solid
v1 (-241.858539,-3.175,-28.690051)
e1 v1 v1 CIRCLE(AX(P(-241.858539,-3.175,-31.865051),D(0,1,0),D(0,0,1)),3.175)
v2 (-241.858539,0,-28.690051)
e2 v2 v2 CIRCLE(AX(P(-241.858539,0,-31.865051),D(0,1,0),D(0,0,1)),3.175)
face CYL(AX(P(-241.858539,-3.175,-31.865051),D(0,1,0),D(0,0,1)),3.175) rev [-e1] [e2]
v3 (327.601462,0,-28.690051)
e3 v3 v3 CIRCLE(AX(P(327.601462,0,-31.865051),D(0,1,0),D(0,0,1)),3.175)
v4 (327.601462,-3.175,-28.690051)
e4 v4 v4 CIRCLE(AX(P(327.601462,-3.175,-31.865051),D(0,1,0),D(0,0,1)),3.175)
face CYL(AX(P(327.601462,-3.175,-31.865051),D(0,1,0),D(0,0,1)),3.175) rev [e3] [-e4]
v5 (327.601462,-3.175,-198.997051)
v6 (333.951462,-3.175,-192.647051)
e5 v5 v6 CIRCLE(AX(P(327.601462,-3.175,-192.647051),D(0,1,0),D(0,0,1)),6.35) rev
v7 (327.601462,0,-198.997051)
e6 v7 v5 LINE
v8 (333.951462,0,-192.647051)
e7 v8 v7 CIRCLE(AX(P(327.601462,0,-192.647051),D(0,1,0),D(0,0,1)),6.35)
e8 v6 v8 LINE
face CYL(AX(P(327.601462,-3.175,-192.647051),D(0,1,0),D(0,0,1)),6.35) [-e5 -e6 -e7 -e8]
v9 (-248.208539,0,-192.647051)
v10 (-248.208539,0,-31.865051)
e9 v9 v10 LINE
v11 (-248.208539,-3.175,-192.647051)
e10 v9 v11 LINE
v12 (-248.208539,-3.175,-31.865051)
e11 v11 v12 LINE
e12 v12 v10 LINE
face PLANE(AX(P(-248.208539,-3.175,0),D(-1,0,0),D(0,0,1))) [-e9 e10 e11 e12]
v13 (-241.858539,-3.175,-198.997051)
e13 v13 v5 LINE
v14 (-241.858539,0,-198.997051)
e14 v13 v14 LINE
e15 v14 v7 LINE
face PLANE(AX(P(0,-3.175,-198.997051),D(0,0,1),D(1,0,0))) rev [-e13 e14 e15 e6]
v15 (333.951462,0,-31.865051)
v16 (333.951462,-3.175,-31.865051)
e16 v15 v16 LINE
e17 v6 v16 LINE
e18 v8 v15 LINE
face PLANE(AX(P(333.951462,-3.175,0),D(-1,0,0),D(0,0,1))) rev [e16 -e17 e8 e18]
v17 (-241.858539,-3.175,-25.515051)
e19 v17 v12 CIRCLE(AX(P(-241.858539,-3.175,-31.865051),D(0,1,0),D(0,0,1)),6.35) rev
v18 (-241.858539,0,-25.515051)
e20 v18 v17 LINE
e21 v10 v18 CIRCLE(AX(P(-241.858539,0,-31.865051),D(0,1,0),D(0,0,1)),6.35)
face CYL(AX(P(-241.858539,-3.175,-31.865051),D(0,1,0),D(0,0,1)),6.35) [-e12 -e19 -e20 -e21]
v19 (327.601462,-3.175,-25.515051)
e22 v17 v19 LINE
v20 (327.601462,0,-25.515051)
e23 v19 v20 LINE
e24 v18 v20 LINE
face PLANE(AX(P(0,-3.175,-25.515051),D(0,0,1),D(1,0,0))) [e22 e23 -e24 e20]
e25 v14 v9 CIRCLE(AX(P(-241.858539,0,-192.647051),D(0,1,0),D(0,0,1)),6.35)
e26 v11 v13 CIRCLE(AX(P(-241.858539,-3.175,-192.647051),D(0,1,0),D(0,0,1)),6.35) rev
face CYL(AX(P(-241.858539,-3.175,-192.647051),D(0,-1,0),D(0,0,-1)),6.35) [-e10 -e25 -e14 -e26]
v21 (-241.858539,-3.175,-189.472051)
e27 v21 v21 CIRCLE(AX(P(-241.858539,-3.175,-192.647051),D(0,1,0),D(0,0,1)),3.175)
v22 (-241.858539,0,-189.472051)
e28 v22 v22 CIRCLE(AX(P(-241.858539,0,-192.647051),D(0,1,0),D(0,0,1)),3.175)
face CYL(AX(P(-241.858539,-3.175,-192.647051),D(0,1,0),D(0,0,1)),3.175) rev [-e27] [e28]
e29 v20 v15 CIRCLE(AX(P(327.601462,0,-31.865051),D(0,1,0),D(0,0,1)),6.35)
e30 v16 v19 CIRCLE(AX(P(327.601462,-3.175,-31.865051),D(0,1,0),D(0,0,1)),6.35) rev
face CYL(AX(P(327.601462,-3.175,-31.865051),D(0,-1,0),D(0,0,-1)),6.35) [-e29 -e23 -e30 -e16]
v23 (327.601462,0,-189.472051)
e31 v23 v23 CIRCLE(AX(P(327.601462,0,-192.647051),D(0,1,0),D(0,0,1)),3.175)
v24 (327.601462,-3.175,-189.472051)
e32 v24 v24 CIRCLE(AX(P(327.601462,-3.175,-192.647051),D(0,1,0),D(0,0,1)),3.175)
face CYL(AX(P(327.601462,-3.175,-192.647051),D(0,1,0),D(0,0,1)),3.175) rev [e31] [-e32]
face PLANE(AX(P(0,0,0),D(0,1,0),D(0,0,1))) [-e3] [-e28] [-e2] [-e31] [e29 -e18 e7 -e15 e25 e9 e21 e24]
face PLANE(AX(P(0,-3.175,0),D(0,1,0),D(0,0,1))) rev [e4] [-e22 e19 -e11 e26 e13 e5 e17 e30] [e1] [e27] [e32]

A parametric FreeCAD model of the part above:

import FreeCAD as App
import Part
import Sketcher
from FreeCAD import Vector
Q = App.Units.Quantity


def edges_at(feature, points):
    """Names of the edges that pass closest to the given points."""
    edges = feature.Shape.Edges
    near = lambda p: min(range(len(edges)), key=lambda i: edges[i].distToShape(Part.Vertex(*p))[0])
    return sorted({f"Edge{near(p) + 1}" for p in points})

doc = App.newDocument("Part")
params = doc.addObject("Spreadsheet::Sheet", "Params")
for row, (alias, value) in enumerate([
    ("sketch1_diameter", "0.25 in"),
    ("sketch1_height", "6.83 in"),
    ("pad1_length", "0.125 in"),
    ("fillet_radius", "0.25 in"),
], start=1):
    params.set(f"A{row}", alias)
    params.set(f"B{row}", "=" + value)
    params.setAlias(f"B{row}", alias)

body = doc.addObject("PartDesign::Body", "Body")

sketch1 = body.newObject("Sketcher::SketchObject", "Sketch")
sketch1.AttachmentSupport = (doc.getObject("XZ_Plane"), [""])
sketch1.MapMode = "FlatFace"
sketch1.addGeometry(Part.LineSegment(Vector(-248.208539, -198.997051, 0), Vector(-248.208539, -25.515051, 0)), False)
sketch1.addGeometry(Part.LineSegment(Vector(-248.208539, -25.515051, 0), Vector(333.951462, -25.515051, 0)), False)
sketch1.addGeometry(Part.LineSegment(Vector(333.951462, -25.515051, 0), Vector(333.951462, -198.997051, 0)), False)
sketch1.addGeometry(Part.LineSegment(Vector(333.951462, -198.997051, 0), Vector(-248.208539, -198.997051, 0)), False)
sketch1.addGeometry(Part.Circle(Vector(-241.858539, -31.865051, 0), Vector(0, 0, 1), 3.175), False)
sketch1.addGeometry(Part.Circle(Vector(327.601462, -31.865051, 0), Vector(0, 0, 1), 3.175), False)
sketch1.addGeometry(Part.Circle(Vector(-241.858539, -192.647051, 0), Vector(0, 0, 1), 3.175), False)
sketch1.addGeometry(Part.Circle(Vector(327.601462, -192.647051, 0), Vector(0, 0, 1), 3.175), False)
sketch1.addConstraint(Sketcher.Constraint("Coincident", 0, 2, 1, 1))
sketch1.addConstraint(Sketcher.Constraint("Coincident", 1, 2, 2, 1))
sketch1.addConstraint(Sketcher.Constraint("Coincident", 2, 2, 3, 1))
sketch1.addConstraint(Sketcher.Constraint("Coincident", 3, 2, 0, 1))
sketch1.addConstraint(Sketcher.Constraint("Vertical", 0))
sketch1.addConstraint(Sketcher.Constraint("Horizontal", 1))
sketch1.addConstraint(Sketcher.Constraint("Vertical", 2))
sketch1.addConstraint(Sketcher.Constraint("Horizontal", 3))
sketch1.addConstraint(Sketcher.Constraint("Equal", 4, 5))
sketch1.addConstraint(Sketcher.Constraint("Equal", 5, 6))
sketch1.addConstraint(Sketcher.Constraint("Equal", 6, 7))
sketch1.addConstraint(Sketcher.Constraint("Horizontal", 4, 3, 5, 3))
sketch1.addConstraint(Sketcher.Constraint("Horizontal", 6, 3, 7, 3))
sketch1.addConstraint(Sketcher.Constraint("Vertical", 4, 3, 6, 3))
sketch1.addConstraint(Sketcher.Constraint("Vertical", 5, 3, 7, 3))
sketch1.addConstraint(Sketcher.Constraint("Diameter", 4, Q("0.25 in")))
sketch1.addConstraint(Sketcher.Constraint("DistanceY", 0, 1, 0, 2, Q("6.83 in")))
sketch1.addConstraint(Sketcher.Constraint("DistanceY", 6, 3, 4, 3, Q("6.33 in")))
sketch1.addConstraint(Sketcher.Constraint("DistanceX", 0, 2, 4, 3, Q("0.25 in")))
sketch1.addConstraint(Sketcher.Constraint("DistanceY", 4, 3, 0, 2, Q("0.25 in")))
sketch1.addConstraint(Sketcher.Constraint("DistanceX", 5, 3, 1, 2, Q("0.25 in")))
sketch1.addConstraint(Sketcher.Constraint("DistanceX", 1, 1, 1, 2, 582.16))
sketch1.addConstraint(Sketcher.Constraint("DistanceX", 4, 3, -1, 1, 241.858539))
sketch1.addConstraint(Sketcher.Constraint("DistanceY", 4, 3, -1, 1, 31.865051))
sketch1.setExpression("Constraints[15]", "Params.sketch1_diameter")
sketch1.setExpression("Constraints[16]", "Params.sketch1_height")
pad1 = body.newObject("PartDesign::Pad", "Pad")
pad1.Profile = sketch1
pad1.setExpression("Length", "Params.pad1_length")
doc.recompute()

fillet = body.newObject("PartDesign::Fillet", "Fillet")
fillet.Base = (pad1, edges_at(pad1, [
    (333.951, -1.587, -25.515),
    (-248.209, -1.587, -25.515),
    (-248.209, -1.587, -198.997),
    (333.951, -1.587, -198.997),
]))
fillet.setExpression("Radius", "Params.fillet_radius")

doc.recompute()
